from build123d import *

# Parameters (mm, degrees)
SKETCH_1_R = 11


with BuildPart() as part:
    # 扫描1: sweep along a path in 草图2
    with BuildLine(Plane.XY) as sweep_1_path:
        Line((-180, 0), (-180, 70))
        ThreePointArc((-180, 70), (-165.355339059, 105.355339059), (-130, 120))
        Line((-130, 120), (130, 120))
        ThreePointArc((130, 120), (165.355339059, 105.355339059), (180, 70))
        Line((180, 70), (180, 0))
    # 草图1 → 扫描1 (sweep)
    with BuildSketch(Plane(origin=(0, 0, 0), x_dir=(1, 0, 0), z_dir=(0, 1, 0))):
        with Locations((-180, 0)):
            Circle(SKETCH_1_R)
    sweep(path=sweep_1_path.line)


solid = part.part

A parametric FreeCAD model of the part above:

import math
import FreeCAD as App
import Part
import Sketcher
from FreeCAD import Vector

doc = App.newDocument("Part")
body = doc.addObject("PartDesign::Body", "Body")

sketch1 = body.newObject("Sketcher::SketchObject", "Sketch")
sketch1.AttachmentSupport = (doc.getObject("XZ_Plane"), [""])
sketch1.MapMode = "FlatFace"
sketch1.addGeometry(Part.Circle(Vector(-180, 0, 0), Vector(0, 0, 1), 11), False)
sketch1.addConstraint([
    Sketcher.Constraint("PointOnObject", 0, 3, -1),
    Sketcher.Constraint("Diameter", 0, 22.0),
    Sketcher.Constraint("DistanceX", 0, 3, -1, 1, 180.0),
])

sketch2 = body.newObject("Sketcher::SketchObject", "Sketch001")
sketch2.AttachmentSupport = (doc.getObject("XY_Plane"), [""])
sketch2.MapMode = "FlatFace"
sketch2.addGeometry([
    Part.LineSegment(Vector(-180, 0, 0), Vector(-180, 70, 0)),
    Part.ArcOfCircle(Part.Circle(Vector(-130, 70, 0), Vector(0, 0, 1), 50), math.radians(90), math.radians(180)),
    Part.LineSegment(Vector(-130, 120, 0), Vector(130, 120, 0)),
    Part.ArcOfCircle(Part.Circle(Vector(130, 70, 0), Vector(0, 0, 1), 50), math.radians(0), math.radians(90)),
    Part.LineSegment(Vector(180, 70, 0), Vector(180, 0, 0)),
], False)
sketch2.addConstraint([
    Sketcher.Constraint("Tangent", 0, 2, 1, 2),
    Sketcher.Constraint("Tangent", 1, 1, 2, 1),
    Sketcher.Constraint("Tangent", 2, 2, 3, 2),
    Sketcher.Constraint("Tangent", 3, 1, 4, 1),
    Sketcher.Constraint("Vertical", 0),
    Sketcher.Constraint("Horizontal", 2),
    Sketcher.Constraint("Vertical", 4),
    Sketcher.Constraint("Equal", 1, 3),
    Sketcher.Constraint("Symmetric", 0, 1, 4, 2, -1, 1),
    Sketcher.Constraint("PointOnObject", 0, 1, -1),
    Sketcher.Constraint("Radius", 1, 50.0),
    Sketcher.Constraint("DistanceX", 2, 1, 2, 2, 260.0),
    Sketcher.Constraint("DistanceY", 0, 1, 0, 2, 70.0),
])
doc.recompute()

additivepipe = body.newObject("PartDesign::AdditivePipe", "AdditivePipe")
additivepipe.Profile = sketch1
additivepipe.Spine = (sketch2, ["Edge1", "Edge2", "Edge3", "Edge4", "Edge5"])

doc.recompute()
